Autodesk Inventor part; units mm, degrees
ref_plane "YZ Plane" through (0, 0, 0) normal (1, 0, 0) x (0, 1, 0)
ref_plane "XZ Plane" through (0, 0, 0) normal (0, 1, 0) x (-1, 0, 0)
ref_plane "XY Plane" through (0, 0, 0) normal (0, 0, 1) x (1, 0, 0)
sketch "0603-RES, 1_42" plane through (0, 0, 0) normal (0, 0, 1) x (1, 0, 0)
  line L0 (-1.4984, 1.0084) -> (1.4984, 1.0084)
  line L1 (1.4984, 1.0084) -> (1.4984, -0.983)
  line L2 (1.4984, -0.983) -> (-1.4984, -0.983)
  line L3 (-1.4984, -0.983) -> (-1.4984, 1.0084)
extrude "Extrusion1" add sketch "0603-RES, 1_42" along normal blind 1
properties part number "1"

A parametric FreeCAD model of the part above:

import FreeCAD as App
import Part
import Sketcher
from FreeCAD import Vector

doc = App.newDocument("Part")
body = doc.addObject("PartDesign::Body", "Body")

sketch1 = doc.addObject("Sketcher::SketchObject", "Sketch")
body.addObject(sketch1)
sketch1.AttachmentSupport = (doc.XY_Plane, [""])
sketch1.MapMode = "FlatFace"
sketch1.addGeometry([
    Part.LineSegment(Vector(1.5, 1, 0), Vector(-1.5, 1, 0)),
    Part.LineSegment(Vector(-1.5, 1, 0), Vector(-1.5, -1, 0)),
    Part.LineSegment(Vector(-1.5, -1, 0), Vector(1.5, -1, 0)),
    Part.LineSegment(Vector(1.5, -1, 0), Vector(1.5, 1, 0)),
], False)
sketch1.addConstraint([
    Sketcher.Constraint("Coincident", 0, 2, 1, 1),
    Sketcher.Constraint("Coincident", 1, 2, 2, 1),
    Sketcher.Constraint("Coincident", 2, 2, 3, 1),
    Sketcher.Constraint("Coincident", 3, 2, 0, 1),
    Sketcher.Constraint("Horizontal", 0),
    Sketcher.Constraint("Vertical", 1),
    Sketcher.Constraint("Horizontal", 2),
    Sketcher.Constraint("Vertical", 3),
    Sketcher.Constraint("DistanceX", 0, 2, 0, 1, 2.9968),
    Sketcher.Constraint("DistanceY", 1, 2, 1, 1, 1.9914),
    Sketcher.Constraint("DistanceY", 1, 2, -1, 1, 0.983),
    Sketcher.Constraint("DistanceX", 0, 2, -1, 1, 1.4984),
])
pad1 = doc.addObject("PartDesign::Pad", "Pad")
body.addObject(pad1)
pad1.Profile = sketch1
pad1.Length = 1

doc.recompute()
